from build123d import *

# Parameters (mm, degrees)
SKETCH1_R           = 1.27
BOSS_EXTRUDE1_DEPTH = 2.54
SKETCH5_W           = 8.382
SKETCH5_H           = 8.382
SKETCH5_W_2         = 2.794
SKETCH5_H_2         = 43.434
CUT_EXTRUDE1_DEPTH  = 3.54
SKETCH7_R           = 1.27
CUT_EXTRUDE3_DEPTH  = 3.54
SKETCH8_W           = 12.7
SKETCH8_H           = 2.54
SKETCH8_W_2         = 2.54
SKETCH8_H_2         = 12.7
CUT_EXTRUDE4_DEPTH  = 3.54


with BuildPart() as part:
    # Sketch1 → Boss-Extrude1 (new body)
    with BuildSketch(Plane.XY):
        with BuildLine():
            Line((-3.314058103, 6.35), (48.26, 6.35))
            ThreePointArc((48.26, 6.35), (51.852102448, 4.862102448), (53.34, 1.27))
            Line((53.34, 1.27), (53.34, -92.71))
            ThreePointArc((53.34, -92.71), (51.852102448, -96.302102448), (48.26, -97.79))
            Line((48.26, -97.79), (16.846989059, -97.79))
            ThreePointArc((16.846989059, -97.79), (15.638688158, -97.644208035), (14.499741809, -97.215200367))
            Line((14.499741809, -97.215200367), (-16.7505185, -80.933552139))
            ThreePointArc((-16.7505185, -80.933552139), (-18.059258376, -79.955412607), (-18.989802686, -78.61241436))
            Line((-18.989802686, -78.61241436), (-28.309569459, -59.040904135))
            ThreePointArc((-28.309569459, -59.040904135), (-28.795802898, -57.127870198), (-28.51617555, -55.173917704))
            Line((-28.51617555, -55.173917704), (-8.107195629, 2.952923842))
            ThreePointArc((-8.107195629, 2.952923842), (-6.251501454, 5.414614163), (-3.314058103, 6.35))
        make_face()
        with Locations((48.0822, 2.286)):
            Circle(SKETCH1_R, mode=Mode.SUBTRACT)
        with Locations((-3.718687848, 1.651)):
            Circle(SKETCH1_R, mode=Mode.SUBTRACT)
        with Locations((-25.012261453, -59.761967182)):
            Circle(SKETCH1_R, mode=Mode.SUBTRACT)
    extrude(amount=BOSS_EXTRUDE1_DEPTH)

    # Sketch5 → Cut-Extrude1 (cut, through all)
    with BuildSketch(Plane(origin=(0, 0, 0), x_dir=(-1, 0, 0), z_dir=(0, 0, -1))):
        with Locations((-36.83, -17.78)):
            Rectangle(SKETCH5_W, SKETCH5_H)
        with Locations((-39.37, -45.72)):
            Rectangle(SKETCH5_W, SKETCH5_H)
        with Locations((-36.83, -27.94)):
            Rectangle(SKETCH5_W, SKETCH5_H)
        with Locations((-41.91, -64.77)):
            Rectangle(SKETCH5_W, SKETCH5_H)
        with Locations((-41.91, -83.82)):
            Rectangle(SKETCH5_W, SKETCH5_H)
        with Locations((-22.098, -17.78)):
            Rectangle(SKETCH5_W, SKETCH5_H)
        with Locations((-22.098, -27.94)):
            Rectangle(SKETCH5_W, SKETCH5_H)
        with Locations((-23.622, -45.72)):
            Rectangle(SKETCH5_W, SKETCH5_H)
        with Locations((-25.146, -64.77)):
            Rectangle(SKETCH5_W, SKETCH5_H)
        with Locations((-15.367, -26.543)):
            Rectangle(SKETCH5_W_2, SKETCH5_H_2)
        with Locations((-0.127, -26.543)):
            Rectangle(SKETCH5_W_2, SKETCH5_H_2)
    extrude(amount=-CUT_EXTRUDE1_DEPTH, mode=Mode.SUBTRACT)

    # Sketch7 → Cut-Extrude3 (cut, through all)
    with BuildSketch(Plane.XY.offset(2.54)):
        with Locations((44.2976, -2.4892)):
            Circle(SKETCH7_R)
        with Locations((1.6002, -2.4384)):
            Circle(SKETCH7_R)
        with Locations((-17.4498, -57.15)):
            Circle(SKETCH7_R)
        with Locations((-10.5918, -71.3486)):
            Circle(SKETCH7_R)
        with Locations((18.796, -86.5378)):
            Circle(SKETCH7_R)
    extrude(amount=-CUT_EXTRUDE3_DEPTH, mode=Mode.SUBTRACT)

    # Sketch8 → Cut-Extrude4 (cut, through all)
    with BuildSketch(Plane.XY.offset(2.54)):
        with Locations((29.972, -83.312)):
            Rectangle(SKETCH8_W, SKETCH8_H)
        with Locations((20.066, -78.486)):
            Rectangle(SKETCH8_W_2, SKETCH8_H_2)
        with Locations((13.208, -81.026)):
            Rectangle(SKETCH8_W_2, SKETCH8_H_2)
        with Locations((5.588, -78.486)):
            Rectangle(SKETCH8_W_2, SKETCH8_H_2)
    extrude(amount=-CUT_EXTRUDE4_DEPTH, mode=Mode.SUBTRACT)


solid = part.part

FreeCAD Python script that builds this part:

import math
import FreeCAD as App
import Part
import Sketcher
from FreeCAD import Vector
Q = App.Units.Quantity


def add_polygon(sketch, points):
    """Adds a closed chain of lines whose ends are joined by coincident constraints."""
    first, n = sketch.GeometryCount, len(points)
    for a, b in zip(points, points[1:] + points[:1]):
        sketch.addGeometry(Part.LineSegment(App.Vector(*a, 0), App.Vector(*b, 0)), False)
    for i in range(n):
        sketch.addConstraint(Sketcher.Constraint("Coincident", first + i, 2, first + (i + 1) % n, 1))

doc = App.newDocument("Part")
body = doc.addObject("PartDesign::Body", "Body")

sketch1 = doc.addObject("Sketcher::SketchObject", "Sketch")
body.addObject(sketch1)
sketch1.AttachmentSupport = (doc.XY_Plane, [""])
sketch1.MapMode = "FlatFace"
sketch1.addGeometry(Part.LineSegment(Vector(48.3, 6.3, 0), Vector(-3.3, 6.3, 0)), False)
sketch1.addGeometry(Part.ArcOfCircle(Part.Circle(Vector(-3.3, 1.3, 0), Vector(0, 0, 1), 5.1), math.radians(90), math.radians(161)), False)
sketch1.addGeometry(Part.LineSegment(Vector(-8.1, 3, 0), Vector(-28.5, -55.2, 0)), False)
sketch1.addGeometry(Part.ArcOfCircle(Part.Circle(Vector(-23.7, -56.9, 0), Vector(0, 0, 1), 5.1), math.radians(161), math.radians(205)), False)
sketch1.addGeometry(Part.LineSegment(Vector(-28.3, -59, 0), Vector(-19, -78.6, 0)), False)
sketch1.addGeometry(Part.ArcOfCircle(Part.Circle(Vector(-14.4, -76.4, 0), Vector(0, 0, 1), 5.1), math.radians(-155), math.radians(-118)), False)
sketch1.addGeometry(Part.LineSegment(Vector(-16.8, -80.9, 0), Vector(14.5, -97.2, 0)), False)
sketch1.addGeometry(Part.ArcOfCircle(Part.Circle(Vector(16.8, -92.7, 0), Vector(0, 0, 1), 5.1), math.radians(-118), math.radians(-90)), False)
sketch1.addGeometry(Part.LineSegment(Vector(16.8, -97.8, 0), Vector(48.3, -97.8, 0)), False)
sketch1.addGeometry(Part.ArcOfCircle(Part.Circle(Vector(48.3, -92.7, 0), Vector(0, 0, 1), 5.1), math.radians(-90), math.radians(0)), False)
sketch1.addGeometry(Part.LineSegment(Vector(53.3, -92.7, 0), Vector(53.3, 1.3, 0)), False)
sketch1.addGeometry(Part.ArcOfCircle(Part.Circle(Vector(48.3, 1.3, 0), Vector(0, 0, 1), 5.1), math.radians(0), math.radians(90)), False)
sketch1.addGeometry(Part.Circle(Vector(-25, -59.8, 0), Vector(0, 0, 1), 1.3), False)
sketch1.addGeometry(Part.Circle(Vector(48.1, 2.3, 0), Vector(0, 0, 1), 1.3), False)
sketch1.addGeometry(Part.Circle(Vector(-3.7, 1.7, 0), Vector(0, 0, 1), 1.3), False)
sketch1.addConstraint(Sketcher.Constraint("Tangent", 0, 2, 1, 1))
sketch1.addConstraint(Sketcher.Constraint("Tangent", 1, 2, 2, 1))
sketch1.addConstraint(Sketcher.Constraint("Tangent", 2, 2, 3, 1))
sketch1.addConstraint(Sketcher.Constraint("Tangent", 3, 2, 4, 1))
sketch1.addConstraint(Sketcher.Constraint("Tangent", 4, 2, 5, 1))
sketch1.addConstraint(Sketcher.Constraint("Tangent", 5, 2, 6, 1))
sketch1.addConstraint(Sketcher.Constraint("Tangent", 6, 2, 7, 1))
sketch1.addConstraint(Sketcher.Constraint("Tangent", 7, 2, 8, 1))
sketch1.addConstraint(Sketcher.Constraint("Tangent", 8, 2, 9, 1))
sketch1.addConstraint(Sketcher.Constraint("Tangent", 9, 2, 10, 1))
sketch1.addConstraint(Sketcher.Constraint("Tangent", 10, 2, 11, 1))
sketch1.addConstraint(Sketcher.Constraint("Tangent", 11, 2, 0, 1))
sketch1.addConstraint(Sketcher.Constraint("Horizontal", 0))
sketch1.addConstraint(Sketcher.Constraint("Horizontal", 8))
sketch1.addConstraint(Sketcher.Constraint("Vertical", 10))
sketch1.addConstraint(Sketcher.Constraint("Equal", 1, 3))
sketch1.addConstraint(Sketcher.Constraint("Equal", 3, 5))
sketch1.addConstraint(Sketcher.Constraint("Equal", 5, 7))
sketch1.addConstraint(Sketcher.Constraint("Equal", 7, 9))
sketch1.addConstraint(Sketcher.Constraint("Equal", 9, 11))
sketch1.addConstraint(Sketcher.Constraint("Equal", 12, 13))
sketch1.addConstraint(Sketcher.Constraint("Equal", 13, 14))
sketch1.addConstraint(Sketcher.Constraint("Diameter", 12, Q("0.1 in")))
sketch1.addConstraint(Sketcher.Constraint("Radius", 1, Q("0.2 in")))
sketch1.addConstraint(Sketcher.Constraint("DistanceY", 10, 1, 10, 2, Q("3.7 in")))
sketch1.addConstraint(Sketcher.Constraint("DistanceX", -1, 1, 9, 3, Q("1.9 in")))
sketch1.addConstraint(Sketcher.Constraint("DistanceY", -1, 1, 1, 3, Q("0.05 in")))
sketch1.addConstraint(Sketcher.Constraint("DistanceY", -1, 1, 13, 3, Q("0.09 in")))
sketch1.addConstraint(Sketcher.Constraint("DistanceX", -1, 1, 13, 3, Q("1.893 in")))
sketch1.addConstraint(Sketcher.Constraint("DistanceY", -1, 1, 14, 3, Q("0.065 in")))
sketch1.addConstraint(Sketcher.Constraint("DistanceX", 0, 2, 0, 1, 51.574058))
sketch1.addConstraint(Sketcher.Constraint("DistanceX", 8, 1, 8, 2, 31.413011))
sketch1.addConstraint(Sketcher.Constraint("DistanceY", 6, 2, -1, 1, 97.2152))
sketch1.addConstraint(Sketcher.Constraint("DistanceX", 3, 2, 5, 3, 13.906298))
sketch1.addConstraint(Sketcher.Constraint("Distance", 2, 61.60565))
sketch1.addConstraint(Sketcher.Constraint("Distance", 6, 35.23735))
sketch1.addConstraint(Sketcher.Constraint("DistanceX", 12, 3, -1, 1, 25.012261))
sketch1.addConstraint(Sketcher.Constraint("DistanceX", 14, 3, 1, 3, 0.40463))
sketch1.addConstraint(Sketcher.Constraint("DistanceY", 12, 3, 2, 2, 4.588049))
pad1 = doc.addObject("PartDesign::Pad", "Pad")
body.addObject(pad1)
pad1.Profile = sketch1
pad1.Length = Q("0.1 in")

sketch2 = doc.addObject("Sketcher::SketchObject", "Sketch001")
body.addObject(sketch2)
sketch2.AttachmentSupport = (doc.XY_Plane, [""])
sketch2.MapMode = "FlatFace"
add_polygon(sketch2, [(41, -13.6), (41, -22), (32.6, -22), (32.6, -13.6)])
add_polygon(sketch2, [(43.6, -41.5), (43.6, -49.9), (35.2, -49.9), (35.2, -41.5)])
add_polygon(sketch2, [(41, -23.7), (41, -32.1), (32.6, -32.1), (32.6, -23.7)])
add_polygon(sketch2, [(46.1, -60.6), (46.1, -69), (37.7, -69), (37.7, -60.6)])
add_polygon(sketch2, [(46.1, -79.6), (46.1, -88), (37.7, -88), (37.7, -79.6)])
add_polygon(sketch2, [(26.3, -13.6), (26.3, -22), (17.9, -22), (17.9, -13.6)])
add_polygon(sketch2, [(26.3, -23.7), (26.3, -32.1), (17.9, -32.1), (17.9, -23.7)])
add_polygon(sketch2, [(27.8, -41.5), (27.8, -49.9), (19.4, -49.9), (19.4, -41.5)])
add_polygon(sketch2, [(29.3, -60.6), (29.3, -69), (21, -69), (21, -60.6)])
add_polygon(sketch2, [(16.8, -4.8), (16.8, -48.3), (14, -48.3), (14, -4.8)])
add_polygon(sketch2, [(1.5, -4.8), (1.5, -48.3), (-1.3, -48.3), (-1.3, -4.8)])
sketch2.addConstraint(Sketcher.Constraint("Vertical", 0))
sketch2.addConstraint(Sketcher.Constraint("Horizontal", 1))
sketch2.addConstraint(Sketcher.Constraint("Vertical", 2))
sketch2.addConstraint(Sketcher.Constraint("Horizontal", 3))
sketch2.addConstraint(Sketcher.Constraint("Vertical", 4))
sketch2.addConstraint(Sketcher.Constraint("Horizontal", 5))
sketch2.addConstraint(Sketcher.Constraint("Vertical", 6))
sketch2.addConstraint(Sketcher.Constraint("Horizontal", 7))
sketch2.addConstraint(Sketcher.Constraint("Vertical", 8))
sketch2.addConstraint(Sketcher.Constraint("Horizontal", 9))
sketch2.addConstraint(Sketcher.Constraint("Vertical", 10))
sketch2.addConstraint(Sketcher.Constraint("Horizontal", 11))
sketch2.addConstraint(Sketcher.Constraint("Vertical", 12))
sketch2.addConstraint(Sketcher.Constraint("Horizontal", 13))
sketch2.addConstraint(Sketcher.Constraint("Vertical", 14))
sketch2.addConstraint(Sketcher.Constraint("Horizontal", 15))
sketch2.addConstraint(Sketcher.Constraint("Vertical", 16))
sketch2.addConstraint(Sketcher.Constraint("Horizontal", 17))
sketch2.addConstraint(Sketcher.Constraint("Vertical", 18))
sketch2.addConstraint(Sketcher.Constraint("Horizontal", 19))
sketch2.addConstraint(Sketcher.Constraint("Vertical", 20))
sketch2.addConstraint(Sketcher.Constraint("Horizontal", 21))
sketch2.addConstraint(Sketcher.Constraint("Vertical", 22))
sketch2.addConstraint(Sketcher.Constraint("Horizontal", 23))
sketch2.addConstraint(Sketcher.Constraint("Vertical", 24))
sketch2.addConstraint(Sketcher.Constraint("Horizontal", 25))
sketch2.addConstraint(Sketcher.Constraint("Vertical", 26))
sketch2.addConstraint(Sketcher.Constraint("Horizontal", 27))
sketch2.addConstraint(Sketcher.Constraint("Vertical", 28))
sketch2.addConstraint(Sketcher.Constraint("Horizontal", 29))
sketch2.addConstraint(Sketcher.Constraint("Vertical", 30))
sketch2.addConstraint(Sketcher.Constraint("Horizontal", 31))
sketch2.addConstraint(Sketcher.Constraint("Vertical", 32))
sketch2.addConstraint(Sketcher.Constraint("Horizontal", 33))
sketch2.addConstraint(Sketcher.Constraint("Vertical", 34))
sketch2.addConstraint(Sketcher.Constraint("Horizontal", 35))
sketch2.addConstraint(Sketcher.Constraint("Vertical", 36))
sketch2.addConstraint(Sketcher.Constraint("Horizontal", 37))
sketch2.addConstraint(Sketcher.Constraint("Vertical", 38))
sketch2.addConstraint(Sketcher.Constraint("Horizontal", 39))
sketch2.addConstraint(Sketcher.Constraint("Vertical", 40))
sketch2.addConstraint(Sketcher.Constraint("Horizontal", 41))
sketch2.addConstraint(Sketcher.Constraint("Vertical", 42))
sketch2.addConstraint(Sketcher.Constraint("Horizontal", 43))
sketch2.addConstraint(Sketcher.Constraint("Horizontal", 1, 2, 20, 2))
sketch2.addConstraint(Sketcher.Constraint("Horizontal", 3, 2, 22, 2))
sketch2.addConstraint(Sketcher.Constraint("Horizontal", 9, 2, 24, 2))
sketch2.addConstraint(Sketcher.Constraint("Horizontal", 11, 2, 26, 2))
sketch2.addConstraint(Sketcher.Constraint("Horizontal", 5, 2, 28, 2))
sketch2.addConstraint(Sketcher.Constraint("Horizontal", 7, 2, 30, 2))
sketch2.addConstraint(Sketcher.Constraint("Horizontal", 13, 2, 32, 2))
sketch2.addConstraint(Sketcher.Constraint("Horizontal", 15, 2, 34, 2))
sketch2.addConstraint(Sketcher.Constraint("Horizontal", 37, 2, 40, 2))
sketch2.addConstraint(Sketcher.Constraint("Horizontal", 39, 2, 42, 2))
sketch2.addConstraint(Sketcher.Constraint("Vertical", 3, 2, 8, 2))
sketch2.addConstraint(Sketcher.Constraint("Vertical", 2, 2, 9, 2))
sketch2.addConstraint(Sketcher.Constraint("Vertical", 15, 2, 16, 2))
sketch2.addConstraint(Sketcher.Constraint("Vertical", 14, 2, 17, 2))
sketch2.addConstraint(Sketcher.Constraint("Vertical", 23, 2, 24, 2))
sketch2.addConstraint(Sketcher.Constraint("Vertical", 22, 2, 25, 2))
sketch2.addConstraint(Sketcher.Constraint("Equal", 3, 5))
sketch2.addConstraint(Sketcher.Constraint("Equal", 11, 13))
sketch2.addConstraint(Sketcher.Constraint("Equal", 19, 21))
sketch2.addConstraint(Sketcher.Constraint("Equal", 27, 29))
sketch2.addConstraint(Sketcher.Constraint("Equal", 31, 33))
sketch2.addConstraint(Sketcher.Constraint("Equal", 39, 41))
sketch2.addConstraint(Sketcher.Constraint("Equal", 35, 0))
sketch2.addConstraint(Sketcher.Constraint("Equal", 2, 4))
sketch2.addConstraint(Sketcher.Constraint("Equal", 6, 8))
sketch2.addConstraint(Sketcher.Constraint("Equal", 10, 12))
sketch2.addConstraint(Sketcher.Constraint("Equal", 14, 16))
sketch2.addConstraint(Sketcher.Constraint("DistanceX", 1, 2, 1, 1, Q("0.33 in")))
sketch2.addConstraint(Sketcher.Constraint("DistanceX", 37, 2, 37, 1, Q("0.11 in")))
sketch2.addConstraint(Sketcher.Constraint("DistanceY", 36, 2, 36, 1, Q("1.71 in")))
sketch2.addConstraint(Sketcher.Constraint("DistanceY", 36, 2, -1, 1, Q("1.9 in")))
sketch2.addConstraint(Sketcher.Constraint("DistanceX", 0, 2, 4, 2, Q("0.1 in")))
sketch2.addConstraint(Sketcher.Constraint("DistanceY", 4, 2, 0, 2, Q("1.1 in")))
sketch2.addConstraint(Sketcher.Constraint("DistanceY", 8, 2, 0, 2, Q("0.4 in")))
sketch2.addConstraint(Sketcher.Constraint("DistanceX", 4, 2, 12, 2, Q("0.1 in")))
sketch2.addConstraint(Sketcher.Constraint("DistanceY", 16, 2, 4, 2, Q("1.5 in")))
sketch2.addConstraint(Sketcher.Constraint("DistanceX", 40, 2, 36, 2, Q("0.6 in")))
sketch2.addConstraint(Sketcher.Constraint("DistanceX", -1, 1, 36, 2, Q("0.66 in")))
sketch2.addConstraint(Sketcher.Constraint("DistanceY", 12, 2, 4, 2, Q("0.75 in")))
sketch2.addConstraint(Sketcher.Constraint("DistanceX", 20, 2, 1, 2, Q("0.25 in")))
sketch2.addConstraint(Sketcher.Constraint("DistanceX", 28, 2, 5, 2, Q("0.29 in")))
sketch2.addConstraint(Sketcher.Constraint("DistanceX", 32, 2, 13, 2, Q("0.33 in")))
sketch2.addConstraint(Sketcher.Constraint("DistanceX", -1, 1, 0, 2, Q("1.615 in")))
sketch2.addConstraint(Sketcher.Constraint("DistanceY", 0, 2, -1, 1, Q("0.865 in")))
pocket1 = doc.addObject("PartDesign::Pocket", "Pocket")
body.addObject(pocket1)
pocket1.Profile = sketch2
pocket1.Type = "ThroughAll"
pocket1.Reversed = True

sketch3 = doc.addObject("Sketcher::SketchObject", "Sketch002")
body.addObject(sketch3)
sketch3.AttachmentSupport = (doc.XY_Plane, [""])
sketch3.MapMode = "FlatFace"
sketch3.AttachmentOffset = App.Placement(Vector(0, 0, 0.1 * 25.4), App.Rotation())
sketch3.addGeometry(Part.Circle(Vector(44.3, -2.5, 0), Vector(0, 0, 1), 1.3), False)
sketch3.addGeometry(Part.Circle(Vector(1.6, -2.4, 0), Vector(0, 0, 1), 1.3), False)
sketch3.addGeometry(Part.Circle(Vector(-17.4, -57.1, 0), Vector(0, 0, 1), 1.3), False)
sketch3.addGeometry(Part.Circle(Vector(-10.6, -71.3, 0), Vector(0, 0, 1), 1.3), False)
sketch3.addGeometry(Part.Circle(Vector(18.8, -86.5, 0), Vector(0, 0, 1), 1.3), False)
sketch3.addConstraint(Sketcher.Constraint("Equal", 0, 1))
sketch3.addConstraint(Sketcher.Constraint("Equal", 1, 2))
sketch3.addConstraint(Sketcher.Constraint("Equal", 2, 3))
sketch3.addConstraint(Sketcher.Constraint("Equal", 3, 4))
sketch3.addConstraint(Sketcher.Constraint("Diameter", 0, Q("0.1 in")))
sketch3.addConstraint(Sketcher.Constraint("DistanceY", 2, 3, -1, 1, Q("2.25 in")))
sketch3.addConstraint(Sketcher.Constraint("DistanceX", -1, 1, 4, 3, Q("0.74 in")))
sketch3.addConstraint(Sketcher.Constraint("DistanceX", 2, 3, 1, 3, Q("0.75 in")))
sketch3.addConstraint(Sketcher.Constraint("DistanceX", 2, 3, 3, 3, Q("0.27 in")))
sketch3.addConstraint(Sketcher.Constraint("DistanceX", -1, 1, 0, 3, Q("1.744 in")))
sketch3.addConstraint(Sketcher.Constraint("DistanceY", 0, 3, -1, 1, Q("0.098 in")))
sketch3.addConstraint(Sketcher.Constraint("DistanceX", -1, 1, 1, 3, Q("0.063 in")))
sketch3.addConstraint(Sketcher.Constraint("DistanceY", 1, 3, -1, 1, Q("0.096 in")))
sketch3.addConstraint(Sketcher.Constraint("DistanceY", 3, 3, -1, 1, Q("2.809 in")))
sketch3.addConstraint(Sketcher.Constraint("DistanceY", 4, 3, -1, 1, Q("3.407 in")))
pocket2 = doc.addObject("PartDesign::Pocket", "Pocket001")
body.addObject(pocket2)
pocket2.Profile = sketch3
pocket2.Type = "ThroughAll"

sketch4 = doc.addObject("Sketcher::SketchObject", "Sketch003")
body.addObject(sketch4)
sketch4.AttachmentSupport = (doc.XY_Plane, [""])
sketch4.MapMode = "FlatFace"
sketch4.AttachmentOffset = App.Placement(Vector(0, 0, 0.1 * 25.4), App.Rotation())
add_polygon(sketch4, [(23.6, -82), (23.6, -84.6), (36.3, -84.6), (36.3, -82)])
add_polygon(sketch4, [(18.8, -72.1), (18.8, -84.8), (21.3, -84.8), (21.3, -72.1)])
add_polygon(sketch4, [(11.9, -74.7), (11.9, -87.4), (14.5, -87.4), (14.5, -74.7)])
add_polygon(sketch4, [(4.3, -72.1), (4.3, -84.8), (6.9, -84.8), (6.9, -72.1)])
sketch4.addConstraint(Sketcher.Constraint("Vertical", 0))
sketch4.addConstraint(Sketcher.Constraint("Horizontal", 1))
sketch4.addConstraint(Sketcher.Constraint("Vertical", 2))
sketch4.addConstraint(Sketcher.Constraint("Horizontal", 3))
sketch4.addConstraint(Sketcher.Constraint("Vertical", 4))
sketch4.addConstraint(Sketcher.Constraint("Horizontal", 5))
sketch4.addConstraint(Sketcher.Constraint("Vertical", 6))
sketch4.addConstraint(Sketcher.Constraint("Horizontal", 7))
sketch4.addConstraint(Sketcher.Constraint("Vertical", 8))
sketch4.addConstraint(Sketcher.Constraint("Horizontal", 9))
sketch4.addConstraint(Sketcher.Constraint("Vertical", 10))
sketch4.addConstraint(Sketcher.Constraint("Horizontal", 11))
sketch4.addConstraint(Sketcher.Constraint("Vertical", 12))
sketch4.addConstraint(Sketcher.Constraint("Horizontal", 13))
sketch4.addConstraint(Sketcher.Constraint("Vertical", 14))
sketch4.addConstraint(Sketcher.Constraint("Horizontal", 15))
sketch4.addConstraint(Sketcher.Constraint("Horizontal", 5, 2, 12, 2))
sketch4.addConstraint(Sketcher.Constraint("Horizontal", 7, 2, 14, 2))
sketch4.addConstraint(Sketcher.Constraint("Equal", 7, 9))
sketch4.addConstraint(Sketcher.Constraint("Equal", 11, 13))
sketch4.addConstraint(Sketcher.Constraint("Equal", 15, 0))
sketch4.addConstraint(Sketcher.Constraint("Equal", 3, 4))
sketch4.addConstraint(Sketcher.Constraint("Equal", 6, 8))
sketch4.addConstraint(Sketcher.Constraint("DistanceX", 1, 1, 1, 2, Q("0.5 in")))
sketch4.addConstraint(Sketcher.Constraint("DistanceX", 5, 1, 5, 2, Q("0.1 in")))
sketch4.addConstraint(Sketcher.Constraint("DistanceY", 8, 2, 4, 2, Q("0.1 in")))
sketch4.addConstraint(Sketcher.Constraint("DistanceX", 12, 2, 8, 2, Q("0.3 in")))
sketch4.addConstraint(Sketcher.Constraint("DistanceX", -1, 1, 0, 2, Q("0.93 in")))
sketch4.addConstraint(Sketcher.Constraint("DistanceY", 0, 2, -1, 1, Q("3.33 in")))
sketch4.addConstraint(Sketcher.Constraint("DistanceX", -1, 1, 4, 2, Q("0.74 in")))
sketch4.addConstraint(Sketcher.Constraint("DistanceY", 4, 2, -1, 1, Q("3.34 in")))
sketch4.addConstraint(Sketcher.Constraint("DistanceX", -1, 1, 8, 2, Q("0.47 in")))
pocket3 = doc.addObject("PartDesign::Pocket", "Pocket002")
body.addObject(pocket3)
pocket3.Profile = sketch4
pocket3.Type = "ThroughAll"

doc.recompute()
